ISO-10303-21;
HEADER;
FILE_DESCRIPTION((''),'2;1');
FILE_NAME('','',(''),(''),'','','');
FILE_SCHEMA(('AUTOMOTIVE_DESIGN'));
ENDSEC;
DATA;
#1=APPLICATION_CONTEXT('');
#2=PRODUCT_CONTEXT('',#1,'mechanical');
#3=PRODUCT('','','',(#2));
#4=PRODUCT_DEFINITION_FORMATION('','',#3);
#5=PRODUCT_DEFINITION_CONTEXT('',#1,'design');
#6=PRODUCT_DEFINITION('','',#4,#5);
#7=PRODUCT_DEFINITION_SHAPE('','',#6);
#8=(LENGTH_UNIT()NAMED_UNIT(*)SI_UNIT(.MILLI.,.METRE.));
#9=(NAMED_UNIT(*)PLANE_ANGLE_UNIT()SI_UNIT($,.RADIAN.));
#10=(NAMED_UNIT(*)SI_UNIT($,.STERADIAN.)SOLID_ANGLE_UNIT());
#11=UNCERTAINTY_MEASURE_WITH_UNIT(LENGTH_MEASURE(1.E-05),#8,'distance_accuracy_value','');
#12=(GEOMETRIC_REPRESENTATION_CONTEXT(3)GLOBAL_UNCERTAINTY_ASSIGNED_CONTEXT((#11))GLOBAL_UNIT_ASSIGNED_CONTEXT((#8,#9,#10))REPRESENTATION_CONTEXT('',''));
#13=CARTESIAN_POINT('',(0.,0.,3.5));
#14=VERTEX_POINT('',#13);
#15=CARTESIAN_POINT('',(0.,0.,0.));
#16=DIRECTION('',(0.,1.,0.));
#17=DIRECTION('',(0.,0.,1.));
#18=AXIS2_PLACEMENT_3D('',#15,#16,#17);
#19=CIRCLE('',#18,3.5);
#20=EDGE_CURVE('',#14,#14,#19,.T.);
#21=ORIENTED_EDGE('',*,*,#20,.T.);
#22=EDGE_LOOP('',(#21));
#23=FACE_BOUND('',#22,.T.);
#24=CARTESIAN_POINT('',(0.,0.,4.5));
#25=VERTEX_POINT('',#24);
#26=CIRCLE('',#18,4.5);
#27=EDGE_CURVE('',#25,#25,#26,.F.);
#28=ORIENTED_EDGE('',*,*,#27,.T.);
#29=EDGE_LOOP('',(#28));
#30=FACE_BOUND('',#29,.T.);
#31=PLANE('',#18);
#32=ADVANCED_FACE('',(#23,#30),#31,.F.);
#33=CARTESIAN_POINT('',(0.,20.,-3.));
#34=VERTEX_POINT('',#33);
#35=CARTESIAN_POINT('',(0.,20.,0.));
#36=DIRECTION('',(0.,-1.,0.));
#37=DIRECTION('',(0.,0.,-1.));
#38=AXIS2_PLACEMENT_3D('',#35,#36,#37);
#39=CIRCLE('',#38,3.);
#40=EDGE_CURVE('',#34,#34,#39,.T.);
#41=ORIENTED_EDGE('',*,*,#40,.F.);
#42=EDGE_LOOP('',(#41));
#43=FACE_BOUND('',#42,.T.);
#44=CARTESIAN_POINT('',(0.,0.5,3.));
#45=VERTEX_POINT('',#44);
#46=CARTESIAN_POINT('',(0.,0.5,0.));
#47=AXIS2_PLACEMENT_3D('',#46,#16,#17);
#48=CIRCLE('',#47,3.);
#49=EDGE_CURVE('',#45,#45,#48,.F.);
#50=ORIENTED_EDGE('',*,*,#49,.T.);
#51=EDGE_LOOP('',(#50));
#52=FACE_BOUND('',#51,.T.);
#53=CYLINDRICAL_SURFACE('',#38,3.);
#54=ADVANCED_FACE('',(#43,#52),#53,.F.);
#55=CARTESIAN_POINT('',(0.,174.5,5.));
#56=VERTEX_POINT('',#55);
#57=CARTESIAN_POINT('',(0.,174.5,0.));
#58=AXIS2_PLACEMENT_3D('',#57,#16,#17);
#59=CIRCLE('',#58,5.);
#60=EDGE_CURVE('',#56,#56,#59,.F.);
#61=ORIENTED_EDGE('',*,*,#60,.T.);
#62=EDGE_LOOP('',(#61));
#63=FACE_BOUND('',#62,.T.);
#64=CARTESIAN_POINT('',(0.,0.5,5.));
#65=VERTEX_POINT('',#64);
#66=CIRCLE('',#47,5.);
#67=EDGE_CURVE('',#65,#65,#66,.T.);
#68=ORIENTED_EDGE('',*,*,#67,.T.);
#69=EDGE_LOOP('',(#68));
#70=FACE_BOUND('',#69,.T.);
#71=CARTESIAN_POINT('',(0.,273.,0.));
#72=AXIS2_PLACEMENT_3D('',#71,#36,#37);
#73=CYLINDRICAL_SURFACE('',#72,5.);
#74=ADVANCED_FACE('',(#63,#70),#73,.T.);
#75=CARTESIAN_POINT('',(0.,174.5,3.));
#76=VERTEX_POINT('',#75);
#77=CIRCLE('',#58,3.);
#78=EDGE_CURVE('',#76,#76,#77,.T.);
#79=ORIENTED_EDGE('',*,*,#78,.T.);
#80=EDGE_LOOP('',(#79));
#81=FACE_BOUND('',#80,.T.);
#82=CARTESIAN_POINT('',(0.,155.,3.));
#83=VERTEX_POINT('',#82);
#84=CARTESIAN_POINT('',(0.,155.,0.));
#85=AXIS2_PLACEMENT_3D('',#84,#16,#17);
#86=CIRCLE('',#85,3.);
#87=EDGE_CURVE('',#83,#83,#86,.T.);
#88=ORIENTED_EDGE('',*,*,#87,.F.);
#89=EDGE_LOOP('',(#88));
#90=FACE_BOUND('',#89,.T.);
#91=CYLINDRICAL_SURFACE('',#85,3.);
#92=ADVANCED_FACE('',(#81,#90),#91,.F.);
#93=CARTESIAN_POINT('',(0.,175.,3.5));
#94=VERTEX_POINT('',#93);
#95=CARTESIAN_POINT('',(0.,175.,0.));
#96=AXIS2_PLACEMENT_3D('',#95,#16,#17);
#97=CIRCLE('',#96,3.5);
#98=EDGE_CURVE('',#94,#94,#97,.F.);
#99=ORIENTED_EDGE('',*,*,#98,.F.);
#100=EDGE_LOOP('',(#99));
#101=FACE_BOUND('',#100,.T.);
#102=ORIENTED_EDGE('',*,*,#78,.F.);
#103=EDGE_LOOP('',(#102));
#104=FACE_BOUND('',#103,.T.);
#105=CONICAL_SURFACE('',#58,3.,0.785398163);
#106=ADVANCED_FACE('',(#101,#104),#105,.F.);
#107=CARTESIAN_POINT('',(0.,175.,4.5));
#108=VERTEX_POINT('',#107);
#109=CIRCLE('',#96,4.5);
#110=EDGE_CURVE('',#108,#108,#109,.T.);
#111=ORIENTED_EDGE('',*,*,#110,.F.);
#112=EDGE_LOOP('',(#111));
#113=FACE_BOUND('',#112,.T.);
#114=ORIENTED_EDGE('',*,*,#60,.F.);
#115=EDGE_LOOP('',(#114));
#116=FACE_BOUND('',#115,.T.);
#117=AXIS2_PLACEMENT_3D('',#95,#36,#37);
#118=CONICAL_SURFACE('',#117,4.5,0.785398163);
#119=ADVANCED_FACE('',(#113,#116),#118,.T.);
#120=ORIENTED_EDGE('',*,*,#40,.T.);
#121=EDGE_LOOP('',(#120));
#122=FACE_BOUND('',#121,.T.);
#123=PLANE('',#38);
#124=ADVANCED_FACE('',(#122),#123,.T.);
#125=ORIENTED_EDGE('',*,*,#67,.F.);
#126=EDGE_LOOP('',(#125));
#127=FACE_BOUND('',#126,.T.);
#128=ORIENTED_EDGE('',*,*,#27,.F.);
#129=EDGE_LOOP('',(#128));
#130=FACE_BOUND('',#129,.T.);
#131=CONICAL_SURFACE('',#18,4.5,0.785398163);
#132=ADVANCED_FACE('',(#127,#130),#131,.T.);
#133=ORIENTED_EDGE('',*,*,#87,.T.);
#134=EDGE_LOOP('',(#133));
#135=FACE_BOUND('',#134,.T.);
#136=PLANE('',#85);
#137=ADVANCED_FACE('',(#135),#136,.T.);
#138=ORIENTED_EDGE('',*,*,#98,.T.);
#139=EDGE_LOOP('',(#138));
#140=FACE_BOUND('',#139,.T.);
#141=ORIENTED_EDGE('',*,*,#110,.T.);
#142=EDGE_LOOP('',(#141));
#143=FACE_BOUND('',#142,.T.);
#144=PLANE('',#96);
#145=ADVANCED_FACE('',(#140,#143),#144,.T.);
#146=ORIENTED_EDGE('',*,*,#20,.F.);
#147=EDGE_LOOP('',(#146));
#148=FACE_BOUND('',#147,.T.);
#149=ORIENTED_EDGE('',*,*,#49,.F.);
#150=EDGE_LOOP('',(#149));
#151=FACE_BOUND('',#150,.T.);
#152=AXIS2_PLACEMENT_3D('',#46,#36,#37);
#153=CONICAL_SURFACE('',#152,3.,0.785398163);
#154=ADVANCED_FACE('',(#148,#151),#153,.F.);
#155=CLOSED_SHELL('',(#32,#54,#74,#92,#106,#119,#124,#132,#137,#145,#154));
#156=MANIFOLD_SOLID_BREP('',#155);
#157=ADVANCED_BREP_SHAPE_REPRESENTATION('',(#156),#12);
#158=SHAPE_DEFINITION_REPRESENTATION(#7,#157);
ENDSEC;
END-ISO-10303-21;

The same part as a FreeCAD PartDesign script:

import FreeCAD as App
import Part
import Sketcher


def edges_at(feature, points):
    """Names of the edges that pass closest to the given points."""
    edges = feature.Shape.Edges
    near = lambda p: min(range(len(edges)), key=lambda i: edges[i].distToShape(Part.Vertex(*p))[0])
    return sorted({f"Edge{near(p) + 1}" for p in points})

doc = App.newDocument("Part")
body = doc.addObject("PartDesign::Body", "Body")

sketch1 = body.newObject("Sketcher::SketchObject", "Sketch")
sketch1.AttachmentSupport = (doc.getObject("XZ_Plane"), [""])
sketch1.MapMode = "FlatFace"
sketch1.addGeometry(Part.Circle(App.Vector(0, 0, 0), App.Vector(0, 0, 1), 10), False)
sketch1.addConstraint([
    Sketcher.Constraint("Coincident", 0, 3, -1, 1),
    Sketcher.Constraint("Diameter", 0, 20.0),
])
pad1 = body.newObject("PartDesign::Pad", "Pad")
pad1.Profile = sketch1
pad1.Length = 175
pad1.Reversed = True
doc.recompute()

chamfer = body.newObject("PartDesign::Chamfer", "Chamfer")
chamfer.Base = (pad1, edges_at(pad1, [(-10, 0, 0), (-10, 175, 0)]))
chamfer.Size = 0.5

sketch2 = body.newObject("Sketcher::SketchObject", "Sketch001")
sketch2.AttachmentSupport = (doc.getObject("XZ_Plane"), [""])
sketch2.MapMode = "FlatFace"
sketch2.AttachmentOffset = App.Placement(App.Vector(0, 0, -175), App.Rotation())
sketch2.addGeometry(Part.Circle(App.Vector(0, 0, 0), App.Vector(0, 0, 1), 3), False)
sketch2.addConstraint([
    Sketcher.Constraint("Coincident", 0, 3, -1, 1),
    Sketcher.Constraint("Diameter", 0, 6.0),
])
pocket1 = body.newObject("PartDesign::Pocket", "Pocket")
pocket1.Profile = sketch2
pocket1.Length = 20
pocket1.Reversed = True
doc.recompute()

chamfer2 = body.newObject("PartDesign::Chamfer", "Chamfer001")
chamfer2.Base = (pocket1, edges_at(pocket1, [(-3, 175, 0)]))
chamfer2.Size = 0.5

sketch3 = body.newObject("Sketcher::SketchObject", "Sketch002")
sketch3.AttachmentSupport = (doc.getObject("XZ_Plane"), [""])
sketch3.MapMode = "FlatFace"
sketch3.addGeometry(Part.Circle(App.Vector(0, 0, 0), App.Vector(0, 0, 1), 3), False)
sketch3.addConstraint([
    Sketcher.Constraint("Coincident", 0, 3, -1, 1),
    Sketcher.Constraint("Diameter", 0, 6.0),
])
pocket2 = body.newObject("PartDesign::Pocket", "Pocket001")
pocket2.Profile = sketch3
pocket2.Length = 20

sketch4 = body.newObject("Sketcher::SketchObject", "Sketch003")
sketch4.AttachmentSupport = (doc.getObject("XZ_Plane"), [""])
sketch4.MapMode = "FlatFace"
sketch4.addGeometry([
    Part.Circle(App.Vector(0, 0, 0), App.Vector(0, 0, 1), 10),
    Part.Circle(App.Vector(0, 0, 0), App.Vector(0, 0, 1), 5),
], False)
sketch4.addConstraint([
    Sketcher.Constraint("Coincident", 0, 3, -1, 1),
    Sketcher.Constraint("Coincident", 1, 3, -1, 1),
    Sketcher.Constraint("Diameter", 0, 20.0),
    Sketcher.Constraint("Diameter", 1, 10.0),
])
pocket3 = body.newObject("PartDesign::Pocket", "Pocket002")
pocket3.Profile = sketch4
pocket3.Length = 273
doc.recompute()

chamfer3 = body.newObject("PartDesign::Chamfer", "Chamfer002")
chamfer3.Base = (pocket3, edges_at(pocket3, [(-3, 0, 0), (-5, 175, 0), (-5, 0, 0)]))
chamfer3.Size = 0.5

doc.recompute()
